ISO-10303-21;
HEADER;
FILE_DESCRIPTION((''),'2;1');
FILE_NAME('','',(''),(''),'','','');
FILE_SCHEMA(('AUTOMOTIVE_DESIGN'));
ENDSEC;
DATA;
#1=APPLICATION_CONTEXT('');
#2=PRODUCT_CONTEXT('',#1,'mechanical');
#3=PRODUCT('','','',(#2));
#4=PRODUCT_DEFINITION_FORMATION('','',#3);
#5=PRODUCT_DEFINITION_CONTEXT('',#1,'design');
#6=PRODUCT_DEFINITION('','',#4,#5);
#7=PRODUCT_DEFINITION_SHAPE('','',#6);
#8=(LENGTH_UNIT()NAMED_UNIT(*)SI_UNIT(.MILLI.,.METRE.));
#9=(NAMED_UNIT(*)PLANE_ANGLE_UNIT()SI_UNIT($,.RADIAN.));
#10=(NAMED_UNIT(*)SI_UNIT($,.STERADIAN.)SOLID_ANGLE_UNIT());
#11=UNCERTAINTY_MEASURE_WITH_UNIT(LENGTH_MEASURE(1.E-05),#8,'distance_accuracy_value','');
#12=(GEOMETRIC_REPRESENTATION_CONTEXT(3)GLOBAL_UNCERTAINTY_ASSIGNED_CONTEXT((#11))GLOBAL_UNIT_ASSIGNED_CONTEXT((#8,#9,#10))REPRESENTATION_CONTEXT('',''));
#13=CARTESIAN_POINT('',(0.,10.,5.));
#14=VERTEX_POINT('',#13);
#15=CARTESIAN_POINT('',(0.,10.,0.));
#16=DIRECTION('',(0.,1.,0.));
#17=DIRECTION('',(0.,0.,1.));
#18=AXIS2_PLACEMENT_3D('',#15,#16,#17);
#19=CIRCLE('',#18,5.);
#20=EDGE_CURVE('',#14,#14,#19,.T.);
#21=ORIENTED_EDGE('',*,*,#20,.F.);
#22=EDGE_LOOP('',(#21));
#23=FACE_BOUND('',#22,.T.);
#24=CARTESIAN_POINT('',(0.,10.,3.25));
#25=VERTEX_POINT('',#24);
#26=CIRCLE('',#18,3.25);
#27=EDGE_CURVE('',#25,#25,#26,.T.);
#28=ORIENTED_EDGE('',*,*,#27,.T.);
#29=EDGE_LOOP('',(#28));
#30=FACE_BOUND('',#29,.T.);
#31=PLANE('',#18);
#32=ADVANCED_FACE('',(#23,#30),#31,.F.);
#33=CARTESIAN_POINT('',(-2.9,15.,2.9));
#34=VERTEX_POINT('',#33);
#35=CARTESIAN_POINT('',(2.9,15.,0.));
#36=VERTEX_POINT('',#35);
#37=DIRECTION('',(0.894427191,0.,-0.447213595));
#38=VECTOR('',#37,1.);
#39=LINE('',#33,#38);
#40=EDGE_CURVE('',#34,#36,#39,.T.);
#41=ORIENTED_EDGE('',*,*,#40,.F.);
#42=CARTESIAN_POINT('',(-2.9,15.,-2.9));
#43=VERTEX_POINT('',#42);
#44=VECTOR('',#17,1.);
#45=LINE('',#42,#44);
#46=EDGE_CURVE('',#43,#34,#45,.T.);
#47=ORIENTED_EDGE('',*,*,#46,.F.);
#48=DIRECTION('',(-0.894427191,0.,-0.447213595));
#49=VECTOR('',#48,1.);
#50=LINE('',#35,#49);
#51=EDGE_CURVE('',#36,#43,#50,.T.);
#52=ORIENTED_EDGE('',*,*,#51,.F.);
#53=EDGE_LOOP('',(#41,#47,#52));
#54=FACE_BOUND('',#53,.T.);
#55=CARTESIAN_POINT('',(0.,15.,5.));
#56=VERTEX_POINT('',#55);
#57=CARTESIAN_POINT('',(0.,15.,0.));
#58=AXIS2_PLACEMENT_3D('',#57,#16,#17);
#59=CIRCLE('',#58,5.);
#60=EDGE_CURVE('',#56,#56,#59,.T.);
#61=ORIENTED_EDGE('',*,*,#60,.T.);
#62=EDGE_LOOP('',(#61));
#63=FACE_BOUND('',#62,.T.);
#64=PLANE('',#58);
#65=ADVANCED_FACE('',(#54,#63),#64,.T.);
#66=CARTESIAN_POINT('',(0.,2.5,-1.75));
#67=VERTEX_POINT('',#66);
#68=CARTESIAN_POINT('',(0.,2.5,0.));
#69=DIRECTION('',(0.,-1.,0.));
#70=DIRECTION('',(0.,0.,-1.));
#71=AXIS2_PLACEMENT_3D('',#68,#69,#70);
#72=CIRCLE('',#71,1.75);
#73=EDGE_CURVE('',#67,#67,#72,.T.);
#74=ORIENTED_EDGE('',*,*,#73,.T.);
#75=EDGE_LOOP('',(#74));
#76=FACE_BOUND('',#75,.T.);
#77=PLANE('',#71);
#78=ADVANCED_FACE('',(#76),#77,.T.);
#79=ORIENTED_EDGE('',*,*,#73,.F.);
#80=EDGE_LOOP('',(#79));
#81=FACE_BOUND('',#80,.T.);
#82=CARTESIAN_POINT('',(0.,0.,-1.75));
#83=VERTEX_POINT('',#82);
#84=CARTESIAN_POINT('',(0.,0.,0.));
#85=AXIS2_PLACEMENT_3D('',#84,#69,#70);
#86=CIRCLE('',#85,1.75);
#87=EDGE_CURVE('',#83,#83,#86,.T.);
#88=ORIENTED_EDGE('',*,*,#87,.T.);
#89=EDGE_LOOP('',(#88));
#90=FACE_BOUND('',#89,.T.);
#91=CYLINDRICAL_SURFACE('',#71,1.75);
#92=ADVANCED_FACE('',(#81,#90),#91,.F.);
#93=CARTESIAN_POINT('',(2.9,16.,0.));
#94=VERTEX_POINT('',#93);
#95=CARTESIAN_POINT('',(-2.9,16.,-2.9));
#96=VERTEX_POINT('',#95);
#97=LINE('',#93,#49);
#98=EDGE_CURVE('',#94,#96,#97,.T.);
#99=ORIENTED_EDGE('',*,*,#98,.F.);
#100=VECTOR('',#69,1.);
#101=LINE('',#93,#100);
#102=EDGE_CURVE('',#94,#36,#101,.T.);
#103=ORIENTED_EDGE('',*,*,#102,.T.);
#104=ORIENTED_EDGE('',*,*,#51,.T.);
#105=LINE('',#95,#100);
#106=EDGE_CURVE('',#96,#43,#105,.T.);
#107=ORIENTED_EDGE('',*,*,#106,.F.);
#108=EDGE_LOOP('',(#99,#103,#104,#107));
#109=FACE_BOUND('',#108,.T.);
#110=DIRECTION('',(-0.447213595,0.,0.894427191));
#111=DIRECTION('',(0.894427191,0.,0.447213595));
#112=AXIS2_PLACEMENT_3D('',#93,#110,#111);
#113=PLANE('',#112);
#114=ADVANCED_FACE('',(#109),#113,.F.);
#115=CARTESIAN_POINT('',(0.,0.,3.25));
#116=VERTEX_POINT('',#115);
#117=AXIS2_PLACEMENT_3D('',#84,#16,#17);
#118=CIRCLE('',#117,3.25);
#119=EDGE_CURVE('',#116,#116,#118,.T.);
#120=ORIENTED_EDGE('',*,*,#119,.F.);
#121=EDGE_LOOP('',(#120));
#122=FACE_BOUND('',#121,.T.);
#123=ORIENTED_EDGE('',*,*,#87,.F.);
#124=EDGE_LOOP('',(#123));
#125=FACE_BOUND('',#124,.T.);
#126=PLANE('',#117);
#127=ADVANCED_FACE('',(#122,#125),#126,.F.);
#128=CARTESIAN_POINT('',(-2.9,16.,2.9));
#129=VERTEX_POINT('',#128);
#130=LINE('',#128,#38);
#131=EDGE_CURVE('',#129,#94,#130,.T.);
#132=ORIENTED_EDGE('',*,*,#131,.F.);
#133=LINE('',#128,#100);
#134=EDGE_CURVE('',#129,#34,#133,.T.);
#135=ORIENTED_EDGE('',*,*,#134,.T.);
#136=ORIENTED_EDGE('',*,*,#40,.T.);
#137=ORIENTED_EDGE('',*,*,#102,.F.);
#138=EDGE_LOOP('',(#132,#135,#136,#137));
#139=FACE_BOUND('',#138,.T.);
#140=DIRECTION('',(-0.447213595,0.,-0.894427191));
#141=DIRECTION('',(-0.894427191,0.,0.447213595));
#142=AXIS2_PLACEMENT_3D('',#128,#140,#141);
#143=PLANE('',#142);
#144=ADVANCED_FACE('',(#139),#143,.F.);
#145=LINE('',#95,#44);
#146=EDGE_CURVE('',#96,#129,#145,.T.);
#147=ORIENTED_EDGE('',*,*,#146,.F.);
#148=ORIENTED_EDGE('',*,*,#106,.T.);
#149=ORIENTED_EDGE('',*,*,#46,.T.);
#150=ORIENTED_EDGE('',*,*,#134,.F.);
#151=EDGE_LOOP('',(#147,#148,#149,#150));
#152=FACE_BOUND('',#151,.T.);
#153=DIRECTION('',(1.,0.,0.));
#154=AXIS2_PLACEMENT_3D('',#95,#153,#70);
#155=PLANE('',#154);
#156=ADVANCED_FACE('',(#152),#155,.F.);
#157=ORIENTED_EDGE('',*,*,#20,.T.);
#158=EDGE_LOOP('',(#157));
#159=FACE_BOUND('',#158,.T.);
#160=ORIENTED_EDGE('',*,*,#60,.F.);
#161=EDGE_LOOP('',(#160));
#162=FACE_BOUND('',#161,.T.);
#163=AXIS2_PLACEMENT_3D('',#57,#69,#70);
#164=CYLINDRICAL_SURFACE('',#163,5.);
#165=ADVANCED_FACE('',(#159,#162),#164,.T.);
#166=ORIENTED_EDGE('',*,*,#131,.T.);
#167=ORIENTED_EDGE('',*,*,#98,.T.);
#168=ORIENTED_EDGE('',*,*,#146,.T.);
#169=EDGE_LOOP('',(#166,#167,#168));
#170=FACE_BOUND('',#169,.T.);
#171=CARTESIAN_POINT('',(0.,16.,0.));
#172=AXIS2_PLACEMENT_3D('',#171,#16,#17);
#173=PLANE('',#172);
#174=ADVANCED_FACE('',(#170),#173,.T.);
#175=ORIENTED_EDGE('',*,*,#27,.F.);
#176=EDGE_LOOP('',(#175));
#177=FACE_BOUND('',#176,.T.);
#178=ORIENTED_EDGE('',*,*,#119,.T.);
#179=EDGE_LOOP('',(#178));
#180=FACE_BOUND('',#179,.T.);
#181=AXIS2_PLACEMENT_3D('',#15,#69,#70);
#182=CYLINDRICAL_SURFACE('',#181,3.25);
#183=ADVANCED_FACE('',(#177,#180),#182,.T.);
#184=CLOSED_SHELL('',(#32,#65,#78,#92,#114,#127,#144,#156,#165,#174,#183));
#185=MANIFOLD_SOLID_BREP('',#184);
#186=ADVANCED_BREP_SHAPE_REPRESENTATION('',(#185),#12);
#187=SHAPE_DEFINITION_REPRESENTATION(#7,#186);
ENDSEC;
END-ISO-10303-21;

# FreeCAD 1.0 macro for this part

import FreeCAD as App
import Part
import Sketcher


def add_polygon(sketch, points):
    """Adds a closed chain of lines whose ends are joined by coincident constraints."""
    first, n = sketch.GeometryCount, len(points)
    for a, b in zip(points, points[1:] + points[:1]):
        sketch.addGeometry(Part.LineSegment(App.Vector(*a, 0), App.Vector(*b, 0)), False)
    for i in range(n):
        sketch.addConstraint(Sketcher.Constraint("Coincident", first + i, 2, first + (i + 1) % n, 1))

doc = App.newDocument("Part")
body = doc.addObject("PartDesign::Body", "Body")

sketch1 = doc.addObject("Sketcher::SketchObject", "Sketch")
body.addObject(sketch1)
sketch1.AttachmentSupport = (doc.XZ_Plane, [""])
sketch1.MapMode = "FlatFace"
sketch1.addGeometry(Part.Circle(App.Vector(0, 0, 0), App.Vector(0, 0, 1), 3.2), False)
sketch1.addConstraint([
    Sketcher.Constraint("Coincident", 0, 3, -1, 1),
    Sketcher.Constraint("Diameter", 0, 6.5),
])
pad1 = doc.addObject("PartDesign::Pad", "Pad")
body.addObject(pad1)
pad1.Profile = sketch1
pad1.Length = 10
pad1.Reversed = True

sketch2 = doc.addObject("Sketcher::SketchObject", "Sketch001")
body.addObject(sketch2)
sketch2.AttachmentSupport = (doc.XZ_Plane, [""])
sketch2.MapMode = "FlatFace"
sketch2.addGeometry(Part.Circle(App.Vector(0, 0, 0), App.Vector(0, 0, 1), 1.8), False)
sketch2.addConstraint([
    Sketcher.Constraint("Coincident", 0, 3, -1, 1),
    Sketcher.Constraint("Diameter", 0, 3.5),
])
pocket1 = doc.addObject("PartDesign::Pocket", "Pocket")
body.addObject(pocket1)
pocket1.Profile = sketch2
pocket1.Length = 2.5

sketch3 = doc.addObject("Sketcher::SketchObject", "Sketch002")
body.addObject(sketch3)
sketch3.AttachmentSupport = (doc.XZ_Plane, [""])
sketch3.MapMode = "FlatFace"
sketch3.AttachmentOffset = App.Placement(App.Vector(0, 0, -10), App.Rotation())
sketch3.addGeometry(Part.Circle(App.Vector(0, 0, 0), App.Vector(0, 0, 1), 5), False)
sketch3.addConstraint([
    Sketcher.Constraint("Coincident", 0, 3, -1, 1),
    Sketcher.Constraint("Diameter", 0, 10.0),
])
pad2 = doc.addObject("PartDesign::Pad", "Pad001")
body.addObject(pad2)
pad2.Profile = sketch3
pad2.Length = 5
pad2.Reversed = True

sketch4 = doc.addObject("Sketcher::SketchObject", "Sketch003")
body.addObject(sketch4)
sketch4.AttachmentSupport = (doc.XZ_Plane, [""])
sketch4.MapMode = "FlatFace"
sketch4.AttachmentOffset = App.Placement(App.Vector(0, 0, -15), App.Rotation())
add_polygon(sketch4, [(-3, -3), (-3, 3), (3, 0)])
sketch4.addConstraint([
    Sketcher.Constraint("Vertical", 0),
    Sketcher.Constraint("PointOnObject", 1, 2, -1),
    Sketcher.Constraint("Equal", 1, 2),
    Sketcher.Constraint("DistanceY", 0, 1, 0, 2, 5.8),
    Sketcher.Constraint("DistanceX", 0, 2, -1, 1, 2.9),
    Sketcher.Constraint("DistanceX", -1, 1, 1, 2, 2.9),
])
pad3 = doc.addObject("PartDesign::Pad", "Pad002")
body.addObject(pad3)
pad3.Profile = sketch4
pad3.Length = 1
pad3.Reversed = True

doc.recompute()
